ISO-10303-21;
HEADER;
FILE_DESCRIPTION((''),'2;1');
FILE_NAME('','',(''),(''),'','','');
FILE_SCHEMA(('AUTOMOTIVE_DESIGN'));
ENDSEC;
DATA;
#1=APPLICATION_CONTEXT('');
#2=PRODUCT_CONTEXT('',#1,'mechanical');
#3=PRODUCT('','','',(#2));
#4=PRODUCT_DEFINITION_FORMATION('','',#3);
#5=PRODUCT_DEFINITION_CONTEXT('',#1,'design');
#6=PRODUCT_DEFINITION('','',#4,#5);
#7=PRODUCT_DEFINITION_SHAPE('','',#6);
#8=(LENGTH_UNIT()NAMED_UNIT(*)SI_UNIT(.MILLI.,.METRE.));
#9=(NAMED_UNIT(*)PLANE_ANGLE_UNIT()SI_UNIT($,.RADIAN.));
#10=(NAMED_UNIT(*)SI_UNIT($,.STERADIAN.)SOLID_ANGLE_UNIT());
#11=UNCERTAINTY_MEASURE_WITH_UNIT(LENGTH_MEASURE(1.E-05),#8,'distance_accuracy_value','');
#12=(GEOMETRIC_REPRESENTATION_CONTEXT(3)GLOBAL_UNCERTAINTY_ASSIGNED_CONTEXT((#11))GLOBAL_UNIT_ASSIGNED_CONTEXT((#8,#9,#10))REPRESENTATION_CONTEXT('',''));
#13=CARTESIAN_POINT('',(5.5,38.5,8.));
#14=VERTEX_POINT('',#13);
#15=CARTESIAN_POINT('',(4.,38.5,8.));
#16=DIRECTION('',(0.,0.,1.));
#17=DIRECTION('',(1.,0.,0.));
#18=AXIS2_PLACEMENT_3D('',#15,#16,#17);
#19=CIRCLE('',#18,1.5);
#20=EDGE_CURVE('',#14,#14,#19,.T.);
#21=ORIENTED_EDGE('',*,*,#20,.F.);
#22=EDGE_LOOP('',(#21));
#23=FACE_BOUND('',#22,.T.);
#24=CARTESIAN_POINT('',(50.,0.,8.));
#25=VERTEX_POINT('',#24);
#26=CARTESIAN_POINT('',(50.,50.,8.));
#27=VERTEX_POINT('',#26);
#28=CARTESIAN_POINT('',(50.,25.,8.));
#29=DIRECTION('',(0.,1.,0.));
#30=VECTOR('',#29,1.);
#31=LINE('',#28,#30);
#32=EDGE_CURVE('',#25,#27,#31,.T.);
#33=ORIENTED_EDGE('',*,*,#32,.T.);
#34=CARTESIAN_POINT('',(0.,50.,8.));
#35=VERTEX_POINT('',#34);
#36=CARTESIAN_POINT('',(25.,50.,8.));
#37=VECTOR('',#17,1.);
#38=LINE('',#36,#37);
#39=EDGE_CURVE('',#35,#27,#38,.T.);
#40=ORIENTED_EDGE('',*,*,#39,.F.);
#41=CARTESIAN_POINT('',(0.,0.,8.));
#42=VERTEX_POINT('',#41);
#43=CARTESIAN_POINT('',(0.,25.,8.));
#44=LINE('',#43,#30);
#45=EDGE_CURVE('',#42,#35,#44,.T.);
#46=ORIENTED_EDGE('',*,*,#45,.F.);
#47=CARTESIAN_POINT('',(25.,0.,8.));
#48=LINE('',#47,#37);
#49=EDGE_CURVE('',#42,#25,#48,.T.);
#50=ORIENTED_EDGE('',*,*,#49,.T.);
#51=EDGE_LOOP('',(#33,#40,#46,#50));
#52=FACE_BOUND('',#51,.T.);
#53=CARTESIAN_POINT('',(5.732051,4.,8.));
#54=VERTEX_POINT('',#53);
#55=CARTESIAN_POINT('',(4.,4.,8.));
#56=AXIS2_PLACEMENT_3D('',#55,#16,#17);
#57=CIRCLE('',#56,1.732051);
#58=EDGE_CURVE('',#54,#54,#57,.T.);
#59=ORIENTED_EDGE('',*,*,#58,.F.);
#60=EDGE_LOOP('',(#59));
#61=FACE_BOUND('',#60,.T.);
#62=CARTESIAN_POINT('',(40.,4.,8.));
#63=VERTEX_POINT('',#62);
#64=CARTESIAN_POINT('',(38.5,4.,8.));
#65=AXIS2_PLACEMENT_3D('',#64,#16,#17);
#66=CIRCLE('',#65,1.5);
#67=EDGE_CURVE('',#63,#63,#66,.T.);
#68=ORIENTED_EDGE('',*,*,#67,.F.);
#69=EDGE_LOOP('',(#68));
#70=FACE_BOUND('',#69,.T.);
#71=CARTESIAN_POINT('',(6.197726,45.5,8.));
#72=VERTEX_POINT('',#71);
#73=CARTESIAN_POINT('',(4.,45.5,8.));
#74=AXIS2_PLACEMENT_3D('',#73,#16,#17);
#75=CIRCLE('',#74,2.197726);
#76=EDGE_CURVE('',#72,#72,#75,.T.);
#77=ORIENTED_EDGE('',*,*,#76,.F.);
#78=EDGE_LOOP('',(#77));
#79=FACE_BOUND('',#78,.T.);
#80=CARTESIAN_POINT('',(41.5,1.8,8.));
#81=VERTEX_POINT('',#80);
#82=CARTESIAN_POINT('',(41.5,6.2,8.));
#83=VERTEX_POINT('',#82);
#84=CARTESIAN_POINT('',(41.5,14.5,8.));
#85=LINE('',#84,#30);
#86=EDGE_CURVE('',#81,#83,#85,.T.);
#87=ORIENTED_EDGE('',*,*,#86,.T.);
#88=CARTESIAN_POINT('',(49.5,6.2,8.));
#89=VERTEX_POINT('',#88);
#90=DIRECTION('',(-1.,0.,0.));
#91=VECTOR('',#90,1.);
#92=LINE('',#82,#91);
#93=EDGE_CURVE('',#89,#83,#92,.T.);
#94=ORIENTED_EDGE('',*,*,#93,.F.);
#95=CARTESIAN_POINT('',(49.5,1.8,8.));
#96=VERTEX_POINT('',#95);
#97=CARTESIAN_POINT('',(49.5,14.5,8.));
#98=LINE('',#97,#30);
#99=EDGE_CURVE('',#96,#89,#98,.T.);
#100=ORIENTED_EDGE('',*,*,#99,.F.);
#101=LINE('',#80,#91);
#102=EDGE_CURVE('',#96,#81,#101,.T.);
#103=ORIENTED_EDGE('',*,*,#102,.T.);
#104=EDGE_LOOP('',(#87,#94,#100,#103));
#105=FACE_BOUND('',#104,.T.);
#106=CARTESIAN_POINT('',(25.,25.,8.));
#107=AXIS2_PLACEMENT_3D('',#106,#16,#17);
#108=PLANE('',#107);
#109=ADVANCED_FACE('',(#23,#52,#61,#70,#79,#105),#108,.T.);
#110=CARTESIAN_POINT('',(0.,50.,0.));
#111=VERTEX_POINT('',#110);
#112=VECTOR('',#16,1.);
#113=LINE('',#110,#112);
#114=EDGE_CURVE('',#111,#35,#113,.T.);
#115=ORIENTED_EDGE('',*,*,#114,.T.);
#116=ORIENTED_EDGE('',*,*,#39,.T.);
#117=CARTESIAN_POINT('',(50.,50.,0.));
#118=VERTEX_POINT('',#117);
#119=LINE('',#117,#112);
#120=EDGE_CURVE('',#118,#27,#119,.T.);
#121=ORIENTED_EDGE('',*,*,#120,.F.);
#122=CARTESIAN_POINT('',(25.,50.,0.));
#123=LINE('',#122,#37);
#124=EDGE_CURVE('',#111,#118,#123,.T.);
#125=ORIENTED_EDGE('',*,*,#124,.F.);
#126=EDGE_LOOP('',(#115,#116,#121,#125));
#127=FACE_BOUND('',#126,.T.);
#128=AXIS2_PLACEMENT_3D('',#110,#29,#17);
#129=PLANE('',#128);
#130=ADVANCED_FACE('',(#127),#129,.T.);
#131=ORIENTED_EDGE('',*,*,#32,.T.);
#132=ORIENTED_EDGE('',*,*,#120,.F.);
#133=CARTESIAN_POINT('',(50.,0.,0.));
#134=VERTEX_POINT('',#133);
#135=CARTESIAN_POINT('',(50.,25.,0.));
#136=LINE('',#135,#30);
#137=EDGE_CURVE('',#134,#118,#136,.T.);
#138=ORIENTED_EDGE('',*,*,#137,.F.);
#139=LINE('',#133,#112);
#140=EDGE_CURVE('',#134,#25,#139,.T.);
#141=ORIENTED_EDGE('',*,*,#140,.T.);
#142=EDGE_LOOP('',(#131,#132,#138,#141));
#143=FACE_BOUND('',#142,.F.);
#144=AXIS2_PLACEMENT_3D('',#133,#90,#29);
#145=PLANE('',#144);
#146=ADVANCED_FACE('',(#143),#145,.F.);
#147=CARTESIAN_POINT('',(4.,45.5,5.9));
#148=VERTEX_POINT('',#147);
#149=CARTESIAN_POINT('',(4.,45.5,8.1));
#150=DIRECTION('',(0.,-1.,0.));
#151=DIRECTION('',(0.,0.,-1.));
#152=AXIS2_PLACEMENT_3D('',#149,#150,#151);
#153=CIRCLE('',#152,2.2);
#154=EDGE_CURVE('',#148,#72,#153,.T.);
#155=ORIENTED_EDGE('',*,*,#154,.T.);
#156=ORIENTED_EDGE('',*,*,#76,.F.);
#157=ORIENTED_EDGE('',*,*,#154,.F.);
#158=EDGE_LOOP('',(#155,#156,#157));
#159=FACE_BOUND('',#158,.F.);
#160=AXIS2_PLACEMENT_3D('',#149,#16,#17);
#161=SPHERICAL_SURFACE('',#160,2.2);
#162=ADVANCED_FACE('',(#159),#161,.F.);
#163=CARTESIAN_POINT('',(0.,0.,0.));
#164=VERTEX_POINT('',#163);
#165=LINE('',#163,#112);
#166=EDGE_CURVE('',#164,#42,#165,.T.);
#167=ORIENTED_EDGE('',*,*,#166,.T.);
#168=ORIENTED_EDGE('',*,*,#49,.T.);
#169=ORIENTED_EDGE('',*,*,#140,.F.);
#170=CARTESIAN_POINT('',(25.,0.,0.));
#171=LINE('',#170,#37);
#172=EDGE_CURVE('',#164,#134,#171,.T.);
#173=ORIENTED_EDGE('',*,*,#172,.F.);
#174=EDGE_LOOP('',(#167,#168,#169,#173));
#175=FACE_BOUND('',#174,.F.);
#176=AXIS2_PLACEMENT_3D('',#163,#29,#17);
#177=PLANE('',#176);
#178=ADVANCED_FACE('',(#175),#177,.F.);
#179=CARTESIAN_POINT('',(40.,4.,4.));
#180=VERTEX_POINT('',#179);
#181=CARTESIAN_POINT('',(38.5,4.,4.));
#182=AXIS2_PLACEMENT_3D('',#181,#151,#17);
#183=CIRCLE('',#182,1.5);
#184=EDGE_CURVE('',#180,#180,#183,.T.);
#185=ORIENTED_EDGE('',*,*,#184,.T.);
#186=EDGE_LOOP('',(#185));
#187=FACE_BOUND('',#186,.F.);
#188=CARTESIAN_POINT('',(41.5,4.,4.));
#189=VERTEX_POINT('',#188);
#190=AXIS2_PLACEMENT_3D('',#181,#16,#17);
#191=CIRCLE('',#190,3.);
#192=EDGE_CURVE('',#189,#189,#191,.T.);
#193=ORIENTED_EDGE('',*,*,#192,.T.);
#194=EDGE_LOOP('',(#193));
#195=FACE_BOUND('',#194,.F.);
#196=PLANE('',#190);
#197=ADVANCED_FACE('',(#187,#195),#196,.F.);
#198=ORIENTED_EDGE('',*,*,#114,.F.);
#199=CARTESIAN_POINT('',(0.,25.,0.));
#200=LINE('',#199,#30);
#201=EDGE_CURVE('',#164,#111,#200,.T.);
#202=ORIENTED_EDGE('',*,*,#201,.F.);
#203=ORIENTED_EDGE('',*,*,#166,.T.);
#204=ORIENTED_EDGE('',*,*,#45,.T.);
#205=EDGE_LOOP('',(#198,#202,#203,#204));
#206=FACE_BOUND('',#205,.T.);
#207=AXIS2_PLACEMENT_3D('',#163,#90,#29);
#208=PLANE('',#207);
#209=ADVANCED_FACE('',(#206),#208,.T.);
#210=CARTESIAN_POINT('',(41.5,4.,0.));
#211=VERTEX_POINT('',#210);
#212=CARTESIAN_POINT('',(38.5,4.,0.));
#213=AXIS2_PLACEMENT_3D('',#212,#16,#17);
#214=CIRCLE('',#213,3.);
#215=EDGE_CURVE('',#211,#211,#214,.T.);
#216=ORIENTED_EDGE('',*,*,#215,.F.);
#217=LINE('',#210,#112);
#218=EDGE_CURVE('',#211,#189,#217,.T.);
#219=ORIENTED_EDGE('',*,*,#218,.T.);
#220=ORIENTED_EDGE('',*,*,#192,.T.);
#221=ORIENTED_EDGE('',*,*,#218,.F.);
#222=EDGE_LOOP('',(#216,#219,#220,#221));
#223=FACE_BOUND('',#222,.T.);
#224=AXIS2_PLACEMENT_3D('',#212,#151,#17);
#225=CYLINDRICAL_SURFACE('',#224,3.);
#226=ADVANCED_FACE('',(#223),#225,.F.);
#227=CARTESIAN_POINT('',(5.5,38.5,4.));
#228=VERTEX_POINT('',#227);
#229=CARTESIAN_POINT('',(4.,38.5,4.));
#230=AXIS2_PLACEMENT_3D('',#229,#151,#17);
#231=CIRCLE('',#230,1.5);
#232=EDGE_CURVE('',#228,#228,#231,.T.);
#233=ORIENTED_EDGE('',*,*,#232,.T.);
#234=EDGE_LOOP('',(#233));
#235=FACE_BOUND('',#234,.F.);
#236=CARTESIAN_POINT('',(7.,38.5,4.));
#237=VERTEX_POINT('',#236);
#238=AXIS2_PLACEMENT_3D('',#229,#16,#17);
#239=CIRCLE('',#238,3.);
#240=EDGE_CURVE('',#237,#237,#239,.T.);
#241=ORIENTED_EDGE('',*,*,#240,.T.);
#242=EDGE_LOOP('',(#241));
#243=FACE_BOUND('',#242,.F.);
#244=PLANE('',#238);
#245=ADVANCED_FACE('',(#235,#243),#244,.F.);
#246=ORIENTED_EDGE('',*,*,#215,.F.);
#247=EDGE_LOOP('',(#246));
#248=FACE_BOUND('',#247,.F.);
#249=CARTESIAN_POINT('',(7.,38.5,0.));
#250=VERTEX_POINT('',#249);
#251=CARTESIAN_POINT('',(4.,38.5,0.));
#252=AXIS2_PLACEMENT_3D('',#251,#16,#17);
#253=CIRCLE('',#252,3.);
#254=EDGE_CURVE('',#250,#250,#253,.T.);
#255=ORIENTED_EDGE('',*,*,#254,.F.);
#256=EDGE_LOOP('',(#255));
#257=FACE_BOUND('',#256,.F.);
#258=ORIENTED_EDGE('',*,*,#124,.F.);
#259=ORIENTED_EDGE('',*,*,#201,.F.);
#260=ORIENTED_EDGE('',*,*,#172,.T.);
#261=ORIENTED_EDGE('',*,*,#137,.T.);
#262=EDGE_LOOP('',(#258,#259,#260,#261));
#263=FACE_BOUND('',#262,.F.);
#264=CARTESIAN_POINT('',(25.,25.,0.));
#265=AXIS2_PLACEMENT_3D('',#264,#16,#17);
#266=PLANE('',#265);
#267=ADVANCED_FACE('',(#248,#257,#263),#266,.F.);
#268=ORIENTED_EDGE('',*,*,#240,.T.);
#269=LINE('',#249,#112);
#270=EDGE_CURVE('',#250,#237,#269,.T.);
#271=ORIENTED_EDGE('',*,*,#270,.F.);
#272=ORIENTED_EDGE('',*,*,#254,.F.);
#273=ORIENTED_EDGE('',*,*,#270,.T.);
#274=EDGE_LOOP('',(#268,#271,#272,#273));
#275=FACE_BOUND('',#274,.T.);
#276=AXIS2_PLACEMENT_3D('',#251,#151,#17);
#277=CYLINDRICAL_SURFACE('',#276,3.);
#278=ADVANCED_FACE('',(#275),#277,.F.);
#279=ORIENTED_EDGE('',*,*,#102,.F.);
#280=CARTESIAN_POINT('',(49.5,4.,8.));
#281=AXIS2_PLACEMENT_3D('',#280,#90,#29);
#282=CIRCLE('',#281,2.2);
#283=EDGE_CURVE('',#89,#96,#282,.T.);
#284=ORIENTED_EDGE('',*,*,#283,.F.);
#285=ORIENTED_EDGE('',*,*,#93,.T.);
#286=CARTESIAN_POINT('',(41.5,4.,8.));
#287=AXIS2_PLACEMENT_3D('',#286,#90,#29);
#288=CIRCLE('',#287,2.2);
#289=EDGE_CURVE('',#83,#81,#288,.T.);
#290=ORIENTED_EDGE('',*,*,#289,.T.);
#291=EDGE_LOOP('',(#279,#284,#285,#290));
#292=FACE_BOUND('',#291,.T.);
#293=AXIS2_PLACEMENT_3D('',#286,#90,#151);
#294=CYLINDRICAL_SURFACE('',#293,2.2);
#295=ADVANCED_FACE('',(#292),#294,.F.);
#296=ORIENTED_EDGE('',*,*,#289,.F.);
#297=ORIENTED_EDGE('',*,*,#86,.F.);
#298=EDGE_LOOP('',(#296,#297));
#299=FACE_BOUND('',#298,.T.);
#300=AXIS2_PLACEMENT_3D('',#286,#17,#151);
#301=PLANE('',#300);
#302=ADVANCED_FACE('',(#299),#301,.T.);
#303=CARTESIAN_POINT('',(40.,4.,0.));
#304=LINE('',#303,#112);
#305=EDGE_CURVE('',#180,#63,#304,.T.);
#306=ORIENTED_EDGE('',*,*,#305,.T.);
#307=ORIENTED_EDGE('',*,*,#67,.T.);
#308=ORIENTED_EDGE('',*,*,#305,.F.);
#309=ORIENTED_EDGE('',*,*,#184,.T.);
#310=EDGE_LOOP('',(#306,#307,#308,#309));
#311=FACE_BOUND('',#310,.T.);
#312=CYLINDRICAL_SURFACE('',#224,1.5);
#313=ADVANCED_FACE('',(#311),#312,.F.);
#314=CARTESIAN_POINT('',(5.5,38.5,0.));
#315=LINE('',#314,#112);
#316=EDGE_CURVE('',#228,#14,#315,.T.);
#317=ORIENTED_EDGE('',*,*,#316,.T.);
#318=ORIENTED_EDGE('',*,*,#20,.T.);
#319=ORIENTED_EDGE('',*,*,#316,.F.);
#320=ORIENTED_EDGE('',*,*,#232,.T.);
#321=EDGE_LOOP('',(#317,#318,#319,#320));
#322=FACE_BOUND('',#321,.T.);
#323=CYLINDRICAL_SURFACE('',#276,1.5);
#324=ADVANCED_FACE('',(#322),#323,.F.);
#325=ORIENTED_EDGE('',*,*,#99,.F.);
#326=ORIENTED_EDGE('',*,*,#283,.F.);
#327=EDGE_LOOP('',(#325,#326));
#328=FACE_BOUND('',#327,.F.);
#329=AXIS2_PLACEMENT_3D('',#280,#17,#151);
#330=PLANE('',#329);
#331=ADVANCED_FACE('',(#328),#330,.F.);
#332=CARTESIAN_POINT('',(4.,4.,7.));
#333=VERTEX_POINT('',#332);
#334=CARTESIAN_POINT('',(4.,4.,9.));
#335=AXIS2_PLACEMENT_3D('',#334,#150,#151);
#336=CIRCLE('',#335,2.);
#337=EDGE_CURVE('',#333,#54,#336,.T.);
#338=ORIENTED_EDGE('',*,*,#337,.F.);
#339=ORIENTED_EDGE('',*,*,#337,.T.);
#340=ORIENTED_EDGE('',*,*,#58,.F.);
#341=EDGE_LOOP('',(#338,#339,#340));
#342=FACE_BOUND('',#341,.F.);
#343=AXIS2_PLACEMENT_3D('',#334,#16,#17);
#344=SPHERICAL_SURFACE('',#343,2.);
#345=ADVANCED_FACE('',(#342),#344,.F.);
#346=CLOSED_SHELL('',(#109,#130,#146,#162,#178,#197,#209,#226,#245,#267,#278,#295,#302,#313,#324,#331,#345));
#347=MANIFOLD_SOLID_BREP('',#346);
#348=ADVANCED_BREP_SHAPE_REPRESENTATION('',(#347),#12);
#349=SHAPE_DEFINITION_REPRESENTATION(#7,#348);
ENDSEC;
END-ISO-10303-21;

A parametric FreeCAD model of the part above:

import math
import FreeCAD as App
import Part
import Sketcher
from FreeCAD import Vector
Q = App.Units.Quantity


def add_polygon(sketch, points):
    """Adds a closed chain of lines whose ends are joined by coincident constraints."""
    first, n = sketch.GeometryCount, len(points)
    for a, b in zip(points, points[1:] + points[:1]):
        sketch.addGeometry(Part.LineSegment(App.Vector(*a, 0), App.Vector(*b, 0)), False)
    for i in range(n):
        sketch.addConstraint(Sketcher.Constraint("Coincident", first + i, 2, first + (i + 1) % n, 1))

doc = App.newDocument("Part")
params = doc.addObject("Spreadsheet::Sheet", "Params")
for row, (alias, value) in enumerate([
    ("sketch1_diameter", "4.4 mm"),
    ("pad1_length", "8 mm"),
    ("sketch2_radius", "2.2 mm"),
    ("revolution_angle", "360 deg"),
    ("sketch3_radius", "2 mm"),
    ("revolution2_angle", "360 deg"),
    ("sketch4_diameter", "6 mm"),
    ("pad2_length", "4 mm"),
    ("sketch5_diameter", "3 mm"),
    ("pad3_length", "8 mm"),
    ("sketch6_diameter", "6 mm"),
    ("pad4_length", "4 mm"),
    ("sketch7_diameter", "3 mm"),
    ("pad5_length", "8 mm"),
    ("sketch8_width", "50 mm"),
    ("pad6_length", "8 mm"),
], start=1):
    params.set(f"A{row}", alias)
    params.set(f"B{row}", "=" + value)
    params.setAlias(f"B{row}", alias)

body = doc.addObject("PartDesign::Body", "Body")

# Sketch on YZ plane
sketch1 = body.newObject("Sketcher::SketchObject", "Sketch")
sketch1.AttachmentSupport = (doc.getObject("YZ_Plane"), [""])
sketch1.MapMode = "FlatFace"
sketch1.AttachmentOffset = App.Placement(Vector(0, 0, 41.5), App.Rotation())
sketch1.addGeometry(Part.Circle(Vector(4, 8, 0), Vector(0, 0, 1), 2.2), False)
sketch1.addConstraint([
    Sketcher.Constraint("Diameter", 0, Q("4.4 mm")),
    Sketcher.Constraint("DistanceX", -1, 1, 0, 3, Q("4 mm")),
    Sketcher.Constraint("DistanceY", -1, 1, 0, 3, Q("8 mm")),
])
sketch1.setExpression("Constraints[0]", "Params.sketch1_diameter")
pad1 = body.newObject("PartDesign::Pad", "Pad")
pad1.Profile = sketch1
pad1.setExpression("Length", "Params.pad1_length")
body2 = doc.addObject("PartDesign::Body", "Body001")

# Sketch on XZ plane
sketch2 = body2.newObject("Sketcher::SketchObject", "Sketch001")
sketch2.AttachmentSupport = (doc.getObject("XZ_Plane001"), [""])
sketch2.MapMode = "FlatFace"
sketch2.AttachmentOffset = App.Placement(Vector(0, 0, -45.5), App.Rotation())
sketch2.addGeometry([
    Part.ArcOfCircle(Part.Circle(Vector(4, 8.1, 0), Vector(0, 0, 1), 2.2), math.radians(-90), math.radians(90)),
    Part.LineSegment(Vector(4, 10.3, 0), Vector(4, 5.9, 0)),
], False)
sketch2.addGeometry(Part.LineSegment(Vector(4, 5.9, 0), Vector(4, 10.3, 0)), True)  # axis
sketch2.addConstraint([
    Sketcher.Constraint("Coincident", 0, 1, 1, 2),
    Sketcher.Constraint("Coincident", 1, 1, 0, 2),
    Sketcher.Constraint("Vertical", 1),
    Sketcher.Constraint("Vertical", 2),
    Sketcher.Constraint("Coincident", 2, 1, 0, 1),
    Sketcher.Constraint("Equal", 1, 2),
    Sketcher.Constraint("Radius", 0, Q("2.2 mm")),
    Sketcher.Constraint("DistanceX", -1, 1, 0, 3, Q("4 mm")),
    Sketcher.Constraint("DistanceX", -1, 1, 0, 1, Q("4 mm")),
    Sketcher.Constraint("DistanceY", -1, 1, 0, 3, Q("8.1 mm")),
])
sketch2.setExpression("Constraints[6]", "Params.sketch2_radius")
revolution = body2.newObject("PartDesign::Revolution", "Revolution")
revolution.Profile = sketch2
revolution.ReferenceAxis = (sketch2, ["Axis0"])
revolution.setExpression("Angle", "Params.revolution_angle")
body3 = doc.addObject("PartDesign::Body", "Body002")

# Sketch on XZ plane
sketch3 = body3.newObject("Sketcher::SketchObject", "Sketch002")
sketch3.AttachmentSupport = (doc.getObject("XZ_Plane002"), [""])
sketch3.MapMode = "FlatFace"
sketch3.AttachmentOffset = App.Placement(Vector(0, 0, -4), App.Rotation())
sketch3.addGeometry([
    Part.ArcOfCircle(Part.Circle(Vector(4, 9, 0), Vector(0, 0, 1), 2), math.radians(-90), math.radians(90)),
    Part.LineSegment(Vector(4, 11, 0), Vector(4, 7, 0)),
], False)
sketch3.addGeometry(Part.LineSegment(Vector(4, 7, 0), Vector(4, 11, 0)), True)  # axis
sketch3.addConstraint([
    Sketcher.Constraint("Coincident", 0, 1, 1, 2),
    Sketcher.Constraint("Coincident", 1, 1, 0, 2),
    Sketcher.Constraint("Vertical", 1),
    Sketcher.Constraint("Vertical", 2),
    Sketcher.Constraint("Coincident", 2, 1, 0, 1),
    Sketcher.Constraint("Equal", 1, 2),
    Sketcher.Constraint("Radius", 0, Q("2 mm")),
    Sketcher.Constraint("DistanceX", -1, 1, 0, 3, Q("4 mm")),
    Sketcher.Constraint("DistanceY", -1, 1, 0, 3, Q("9 mm")),
    Sketcher.Constraint("DistanceX", -1, 1, 0, 1, Q("4 mm")),
])
sketch3.setExpression("Constraints[6]", "Params.sketch3_radius")
revolution2 = body3.newObject("PartDesign::Revolution", "Revolution001")
revolution2.Profile = sketch3
revolution2.ReferenceAxis = (sketch3, ["Axis0"])
revolution2.setExpression("Angle", "Params.revolution2_angle")
body4 = doc.addObject("PartDesign::Body", "Body003")

# Sketch on XY plane
sketch4 = body4.newObject("Sketcher::SketchObject", "Sketch003")
sketch4.AttachmentSupport = (doc.getObject("XY_Plane003"), [""])
sketch4.MapMode = "FlatFace"
sketch4.addGeometry(Part.Circle(Vector(0, 0, 0), Vector(0, 0, 1), 3), False)
sketch4.addConstraint([
    Sketcher.Constraint("Coincident", 0, 3, -1, 1),
    Sketcher.Constraint("Diameter", 0, Q("6 mm")),
])
sketch4.setExpression("Constraints[1]", "Params.sketch4_diameter")
pad2 = body4.newObject("PartDesign::Pad", "Pad001")
pad2.Profile = sketch4
pad2.setExpression("Length", "Params.pad2_length")
body5 = doc.addObject("PartDesign::Body", "Body004")

# Sketch on XY plane
sketch5 = body5.newObject("Sketcher::SketchObject", "Sketch004")
sketch5.AttachmentSupport = (doc.getObject("XY_Plane004"), [""])
sketch5.MapMode = "FlatFace"
sketch5.addGeometry(Part.Circle(Vector(0, 0, 0), Vector(0, 0, 1), 1.5), False)
sketch5.addConstraint([
    Sketcher.Constraint("Coincident", 0, 3, -1, 1),
    Sketcher.Constraint("Diameter", 0, Q("3 mm")),
])
sketch5.setExpression("Constraints[1]", "Params.sketch5_diameter")
pad3 = body5.newObject("PartDesign::Pad", "Pad002")
pad3.Profile = sketch5
pad3.setExpression("Length", "Params.pad3_length")
doc.recompute()

boolean = body5.newObject("PartDesign::Boolean", "Boolean")
boolean.Type = "Fuse"
boolean.addObjects([body4])
body6 = doc.addObject("PartDesign::Body", "Body005")
doc.recompute()

body5.Placement = App.Placement(Vector(4, 38.5, 0), App.Rotation(Vector(0, 0, 1), 0))
boolean2 = body6.newObject("PartDesign::Boolean", "Boolean001")
boolean2.Type = "Fuse"
boolean2.addObjects([body5])
body7 = doc.addObject("PartDesign::Body", "Body006")

# Sketch on XY plane
sketch6 = body7.newObject("Sketcher::SketchObject", "Sketch005")
sketch6.AttachmentSupport = (doc.getObject("XY_Plane006"), [""])
sketch6.MapMode = "FlatFace"
sketch6.addGeometry(Part.Circle(Vector(0, 0, 0), Vector(0, 0, 1), 3), False)
sketch6.addConstraint([
    Sketcher.Constraint("Coincident", 0, 3, -1, 1),
    Sketcher.Constraint("Diameter", 0, Q("6 mm")),
])
sketch6.setExpression("Constraints[1]", "Params.sketch6_diameter")
pad4 = body7.newObject("PartDesign::Pad", "Pad003")
pad4.Profile = sketch6
pad4.setExpression("Length", "Params.pad4_length")
body8 = doc.addObject("PartDesign::Body", "Body007")

# Sketch on XY plane
sketch7 = body8.newObject("Sketcher::SketchObject", "Sketch006")
sketch7.AttachmentSupport = (doc.getObject("XY_Plane007"), [""])
sketch7.MapMode = "FlatFace"
sketch7.addGeometry(Part.Circle(Vector(0, 0, 0), Vector(0, 0, 1), 1.5), False)
sketch7.addConstraint([
    Sketcher.Constraint("Coincident", 0, 3, -1, 1),
    Sketcher.Constraint("Diameter", 0, Q("3 mm")),
])
sketch7.setExpression("Constraints[1]", "Params.sketch7_diameter")
pad5 = body8.newObject("PartDesign::Pad", "Pad004")
pad5.Profile = sketch7
pad5.setExpression("Length", "Params.pad5_length")
doc.recompute()

boolean3 = body8.newObject("PartDesign::Boolean", "Boolean002")
boolean3.Type = "Fuse"
boolean3.addObjects([body7])
body9 = doc.addObject("PartDesign::Body", "Body008")
doc.recompute()

body8.Placement = App.Placement(Vector(38.5, 4, 0), App.Rotation(Vector(0, 0, 1), 0))
boolean4 = body9.newObject("PartDesign::Boolean", "Boolean003")
boolean4.Type = "Fuse"
boolean4.addObjects([body8])
body10 = doc.addObject("PartDesign::Body", "Body009")

# Sketch on XY plane
sketch8 = body10.newObject("Sketcher::SketchObject", "Sketch007")
sketch8.AttachmentSupport = (doc.getObject("XY_Plane009"), [""])
sketch8.MapMode = "FlatFace"
add_polygon(sketch8, [(0, 50), (0, 0), (50, 0), (50, 50)])  # lines 0-3
sketch8.addConstraint([
    Sketcher.Constraint("Vertical", 0),
    Sketcher.Constraint("Horizontal", 1),
    Sketcher.Constraint("Vertical", 2),
    Sketcher.Constraint("Horizontal", 3),
    Sketcher.Constraint("Coincident", 0, 2, -1, 1),
    Sketcher.Constraint("Equal", 3, 0),
    Sketcher.Constraint("DistanceX", 1, 1, 1, 2, Q("50 mm")),
])
sketch8.setExpression("Constraints[10]", "Params.sketch8_width")
pad6 = body10.newObject("PartDesign::Pad", "Pad005")
pad6.Profile = sketch8
pad6.setExpression("Length", "Params.pad6_length")
doc.recompute()

boolean5 = body10.newObject("PartDesign::Boolean", "Boolean004")
boolean5.Type = "Cut"
boolean5.addObjects([body9])
doc.recompute()

boolean6 = body10.newObject("PartDesign::Boolean", "Boolean005")
boolean6.Type = "Cut"
boolean6.addObjects([body6])
doc.recompute()

boolean7 = body10.newObject("PartDesign::Boolean", "Boolean006")
boolean7.Type = "Cut"
boolean7.addObjects([body3])
doc.recompute()

boolean8 = body10.newObject("PartDesign::Boolean", "Boolean007")
boolean8.Type = "Cut"
boolean8.addObjects([body2])
doc.recompute()

boolean9 = body10.newObject("PartDesign::Boolean", "Boolean008")
boolean9.Type = "Cut"
boolean9.addObjects([body])

doc.recompute()
